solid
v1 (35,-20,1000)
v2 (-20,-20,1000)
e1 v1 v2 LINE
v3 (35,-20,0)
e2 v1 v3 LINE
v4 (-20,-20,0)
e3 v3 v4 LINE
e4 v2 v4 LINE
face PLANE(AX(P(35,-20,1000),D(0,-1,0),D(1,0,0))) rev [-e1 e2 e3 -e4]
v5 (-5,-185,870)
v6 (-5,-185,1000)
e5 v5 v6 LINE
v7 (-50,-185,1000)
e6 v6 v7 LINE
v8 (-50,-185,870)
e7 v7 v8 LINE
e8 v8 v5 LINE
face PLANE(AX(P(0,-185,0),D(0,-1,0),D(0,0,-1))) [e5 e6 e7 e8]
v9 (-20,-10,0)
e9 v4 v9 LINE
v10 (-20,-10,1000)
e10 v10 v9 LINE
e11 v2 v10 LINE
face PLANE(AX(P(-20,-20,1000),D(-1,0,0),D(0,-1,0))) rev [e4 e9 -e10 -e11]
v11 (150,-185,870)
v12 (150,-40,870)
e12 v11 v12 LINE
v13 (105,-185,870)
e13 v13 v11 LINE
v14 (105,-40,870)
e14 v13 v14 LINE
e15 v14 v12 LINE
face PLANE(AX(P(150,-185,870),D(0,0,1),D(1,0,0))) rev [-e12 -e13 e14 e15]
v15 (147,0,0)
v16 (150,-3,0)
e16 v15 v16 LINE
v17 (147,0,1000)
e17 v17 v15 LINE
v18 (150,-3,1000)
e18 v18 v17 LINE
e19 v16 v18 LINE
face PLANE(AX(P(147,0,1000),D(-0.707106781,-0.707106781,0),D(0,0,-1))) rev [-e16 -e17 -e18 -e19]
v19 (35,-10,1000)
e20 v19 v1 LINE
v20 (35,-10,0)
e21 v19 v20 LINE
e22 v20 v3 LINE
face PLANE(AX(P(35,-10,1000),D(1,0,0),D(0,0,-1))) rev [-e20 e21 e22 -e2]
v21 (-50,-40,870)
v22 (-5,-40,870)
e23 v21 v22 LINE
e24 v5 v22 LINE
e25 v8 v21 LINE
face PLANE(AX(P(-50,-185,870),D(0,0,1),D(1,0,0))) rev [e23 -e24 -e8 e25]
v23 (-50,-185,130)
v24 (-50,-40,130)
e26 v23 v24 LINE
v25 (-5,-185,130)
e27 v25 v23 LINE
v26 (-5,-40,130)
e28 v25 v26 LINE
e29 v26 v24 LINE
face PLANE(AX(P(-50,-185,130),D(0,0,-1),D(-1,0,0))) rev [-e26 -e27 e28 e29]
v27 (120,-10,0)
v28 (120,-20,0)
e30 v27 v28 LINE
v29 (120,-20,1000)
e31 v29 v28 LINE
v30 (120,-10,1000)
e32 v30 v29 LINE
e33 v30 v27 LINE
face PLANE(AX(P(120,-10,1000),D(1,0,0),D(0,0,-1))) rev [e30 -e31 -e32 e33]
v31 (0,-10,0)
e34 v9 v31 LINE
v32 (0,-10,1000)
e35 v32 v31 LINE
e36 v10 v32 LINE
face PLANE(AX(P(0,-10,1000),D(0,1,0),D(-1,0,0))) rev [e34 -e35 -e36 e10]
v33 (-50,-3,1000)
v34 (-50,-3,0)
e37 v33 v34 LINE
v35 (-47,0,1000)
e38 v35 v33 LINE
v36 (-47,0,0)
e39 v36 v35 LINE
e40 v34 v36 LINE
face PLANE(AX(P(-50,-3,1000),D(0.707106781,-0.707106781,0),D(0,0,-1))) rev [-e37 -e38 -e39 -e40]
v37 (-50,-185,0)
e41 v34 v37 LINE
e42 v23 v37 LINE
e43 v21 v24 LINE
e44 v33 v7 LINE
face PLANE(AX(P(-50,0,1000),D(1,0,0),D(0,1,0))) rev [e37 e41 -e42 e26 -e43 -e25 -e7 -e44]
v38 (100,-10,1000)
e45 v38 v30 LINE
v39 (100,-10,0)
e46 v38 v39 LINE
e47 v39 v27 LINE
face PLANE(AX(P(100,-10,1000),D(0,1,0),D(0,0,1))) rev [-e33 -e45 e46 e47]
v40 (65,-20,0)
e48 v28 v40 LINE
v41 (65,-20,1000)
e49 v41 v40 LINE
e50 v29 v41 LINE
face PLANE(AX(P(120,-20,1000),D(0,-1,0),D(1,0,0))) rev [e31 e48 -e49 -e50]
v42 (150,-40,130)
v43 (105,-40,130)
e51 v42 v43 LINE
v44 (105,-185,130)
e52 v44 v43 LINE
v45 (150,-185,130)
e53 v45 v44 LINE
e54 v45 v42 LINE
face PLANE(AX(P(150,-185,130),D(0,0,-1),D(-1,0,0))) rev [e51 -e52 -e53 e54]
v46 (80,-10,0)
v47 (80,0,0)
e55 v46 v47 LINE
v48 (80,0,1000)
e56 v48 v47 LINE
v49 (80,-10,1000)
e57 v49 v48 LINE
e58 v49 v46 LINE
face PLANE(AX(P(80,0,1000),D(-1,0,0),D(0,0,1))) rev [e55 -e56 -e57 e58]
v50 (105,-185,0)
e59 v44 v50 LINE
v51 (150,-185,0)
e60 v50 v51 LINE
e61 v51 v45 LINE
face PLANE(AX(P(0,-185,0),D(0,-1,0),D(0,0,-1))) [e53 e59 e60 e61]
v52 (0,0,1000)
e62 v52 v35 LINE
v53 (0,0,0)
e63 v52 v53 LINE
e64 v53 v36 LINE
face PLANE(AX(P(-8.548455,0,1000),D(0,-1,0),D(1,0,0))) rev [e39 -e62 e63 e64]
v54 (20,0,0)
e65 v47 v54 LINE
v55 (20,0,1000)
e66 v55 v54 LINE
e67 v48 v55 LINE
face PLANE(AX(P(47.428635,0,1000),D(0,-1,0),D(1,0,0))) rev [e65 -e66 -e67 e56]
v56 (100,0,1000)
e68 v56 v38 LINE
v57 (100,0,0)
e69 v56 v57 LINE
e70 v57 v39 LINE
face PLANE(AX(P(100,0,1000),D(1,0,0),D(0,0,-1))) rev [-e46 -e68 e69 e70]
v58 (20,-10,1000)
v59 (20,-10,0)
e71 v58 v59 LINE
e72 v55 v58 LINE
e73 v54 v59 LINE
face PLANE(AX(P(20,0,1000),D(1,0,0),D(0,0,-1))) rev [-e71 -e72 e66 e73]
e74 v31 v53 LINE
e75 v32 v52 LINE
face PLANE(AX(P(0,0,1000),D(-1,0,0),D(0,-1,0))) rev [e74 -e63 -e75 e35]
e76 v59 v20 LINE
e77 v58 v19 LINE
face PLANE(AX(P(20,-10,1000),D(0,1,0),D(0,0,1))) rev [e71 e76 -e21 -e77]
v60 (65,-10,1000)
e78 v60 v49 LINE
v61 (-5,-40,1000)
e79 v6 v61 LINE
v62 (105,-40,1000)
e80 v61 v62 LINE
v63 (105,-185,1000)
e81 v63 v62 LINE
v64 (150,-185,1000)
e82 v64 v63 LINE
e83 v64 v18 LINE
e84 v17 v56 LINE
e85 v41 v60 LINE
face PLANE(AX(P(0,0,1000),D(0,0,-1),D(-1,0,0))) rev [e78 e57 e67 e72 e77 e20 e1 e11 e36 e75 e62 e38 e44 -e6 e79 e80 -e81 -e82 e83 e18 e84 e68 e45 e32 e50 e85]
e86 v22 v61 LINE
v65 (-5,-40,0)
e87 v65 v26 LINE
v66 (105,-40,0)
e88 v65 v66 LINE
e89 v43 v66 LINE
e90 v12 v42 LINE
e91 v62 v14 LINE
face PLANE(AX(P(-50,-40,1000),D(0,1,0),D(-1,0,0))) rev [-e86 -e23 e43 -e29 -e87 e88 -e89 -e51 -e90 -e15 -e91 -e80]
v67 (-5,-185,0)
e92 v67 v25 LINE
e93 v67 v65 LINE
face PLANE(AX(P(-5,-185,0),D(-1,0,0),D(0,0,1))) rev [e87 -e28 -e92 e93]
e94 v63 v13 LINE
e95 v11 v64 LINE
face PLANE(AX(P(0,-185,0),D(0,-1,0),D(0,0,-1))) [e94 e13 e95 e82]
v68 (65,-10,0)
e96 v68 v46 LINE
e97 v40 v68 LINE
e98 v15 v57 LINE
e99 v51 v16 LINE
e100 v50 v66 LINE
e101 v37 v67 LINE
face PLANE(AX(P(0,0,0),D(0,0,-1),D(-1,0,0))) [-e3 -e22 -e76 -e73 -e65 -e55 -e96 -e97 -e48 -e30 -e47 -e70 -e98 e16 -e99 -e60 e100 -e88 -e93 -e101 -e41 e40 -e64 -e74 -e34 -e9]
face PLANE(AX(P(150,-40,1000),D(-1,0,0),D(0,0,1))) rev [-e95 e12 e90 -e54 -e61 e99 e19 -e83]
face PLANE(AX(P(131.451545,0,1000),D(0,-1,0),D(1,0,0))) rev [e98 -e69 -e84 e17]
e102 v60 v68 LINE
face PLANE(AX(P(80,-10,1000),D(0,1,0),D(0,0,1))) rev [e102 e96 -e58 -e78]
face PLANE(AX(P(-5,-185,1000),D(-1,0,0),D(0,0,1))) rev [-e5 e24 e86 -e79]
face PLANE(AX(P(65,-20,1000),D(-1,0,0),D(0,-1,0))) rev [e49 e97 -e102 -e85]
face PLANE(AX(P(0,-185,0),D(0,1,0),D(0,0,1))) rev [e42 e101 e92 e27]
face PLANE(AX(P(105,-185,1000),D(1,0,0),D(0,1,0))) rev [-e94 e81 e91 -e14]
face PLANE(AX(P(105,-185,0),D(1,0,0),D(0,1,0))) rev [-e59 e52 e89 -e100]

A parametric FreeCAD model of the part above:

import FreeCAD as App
import Part
import Sketcher

V = App.Vector


def edges_at(feature, points):
    """Names of the edges that pass closest to the given points."""
    edges = feature.Shape.Edges
    near = lambda p: min(range(len(edges)), key=lambda i: edges[i].distToShape(Part.Vertex(*p))[0])
    return sorted({f"Edge{near(p) + 1}" for p in points})

doc = App.newDocument("Part")
body = doc.addObject("PartDesign::Body", "Body")

# Sketch on XY plane
sketch1 = body.newObject("Sketcher::SketchObject", "Sketch")
sketch1.AttachmentSupport = (doc.getObject("XY_Plane"), [""])
sketch1.MapMode = "FlatFace"
sketch1.addGeometry([
    Part.LineSegment(V(-50, 0, 0), V(-50, -40, 0)),  # 0
    Part.LineSegment(V(-50, -40, 0), V(150, -40, 0)),  # 1
    Part.LineSegment(V(150, -40, 0), V(150, 0, 0)),  # 2
    Part.LineSegment(V(150, 0, 0), V(100, 0, 0)),  # 3
    Part.LineSegment(V(100, 0, 0), V(100, -10, 0)),  # 4
    Part.LineSegment(V(100, -10, 0), V(120, -10, 0)),  # 5
    Part.LineSegment(V(120, -10, 0), V(120, -20, 0)),  # 6
    Part.LineSegment(V(120, -20, 0), V(65, -20, 0)),  # 7
    Part.LineSegment(V(65, -20, 0), V(65, -10, 0)),  # 8
    Part.LineSegment(V(65, -10, 0), V(80, -10, 0)),  # 9
    Part.LineSegment(V(80, -10, 0), V(80, 0, 0)),  # 10
    Part.LineSegment(V(80, 0, 0), V(20, 0, 0)),  # 11
    Part.LineSegment(V(20, 0, 0), V(20, -10, 0)),  # 12
    Part.LineSegment(V(20, -10, 0), V(35, -10, 0)),  # 13
    Part.LineSegment(V(35, -10, 0), V(35, -20, 0)),  # 14
    Part.LineSegment(V(35, -20, 0), V(-20, -20, 0)),  # 15
    Part.LineSegment(V(-20, -20, 0), V(-20, -10, 0)),  # 16
    Part.LineSegment(V(-20, -10, 0), V(0, -10, 0)),  # 17
    Part.LineSegment(V(0, -10, 0), V(0, 0, 0)),  # 18
    Part.LineSegment(V(0, 0, 0), V(-50, 0, 0)),  # 19
], False)
sketch1.addConstraint([
    Sketcher.Constraint("Coincident", 0, 2, 1, 1),
    Sketcher.Constraint("Coincident", 1, 2, 2, 1),
    Sketcher.Constraint("Coincident", 2, 2, 3, 1),
    Sketcher.Constraint("Coincident", 3, 2, 4, 1),
    Sketcher.Constraint("Coincident", 4, 2, 5, 1),
    Sketcher.Constraint("Coincident", 5, 2, 6, 1),
    Sketcher.Constraint("Coincident", 6, 2, 7, 1),
    Sketcher.Constraint("Coincident", 7, 2, 8, 1),
    Sketcher.Constraint("Coincident", 8, 2, 9, 1),
    Sketcher.Constraint("Coincident", 9, 2, 10, 1),
    Sketcher.Constraint("Coincident", 10, 2, 11, 1),
    Sketcher.Constraint("Coincident", 11, 2, 12, 1),
    Sketcher.Constraint("Coincident", 12, 2, 13, 1),
    Sketcher.Constraint("Coincident", 13, 2, 14, 1),
    Sketcher.Constraint("Coincident", 14, 2, 15, 1),
    Sketcher.Constraint("Coincident", 15, 2, 16, 1),
    Sketcher.Constraint("Coincident", 16, 2, 17, 1),
    Sketcher.Constraint("Coincident", 17, 2, 18, 1),
    Sketcher.Constraint("Coincident", 18, 2, 19, 1),
    Sketcher.Constraint("Coincident", 19, 2, 0, 1),
    Sketcher.Constraint("Vertical", 0),
    Sketcher.Constraint("Horizontal", 1),
    Sketcher.Constraint("Vertical", 2),
    Sketcher.Constraint("Horizontal", 3),
    Sketcher.Constraint("Vertical", 4),
    Sketcher.Constraint("Horizontal", 5),
    Sketcher.Constraint("Vertical", 6),
    Sketcher.Constraint("Horizontal", 7),
    Sketcher.Constraint("Vertical", 8),
    Sketcher.Constraint("Horizontal", 9),
    Sketcher.Constraint("Vertical", 10),
    Sketcher.Constraint("Horizontal", 11),
    Sketcher.Constraint("Vertical", 12),
    Sketcher.Constraint("Horizontal", 13),
    Sketcher.Constraint("Vertical", 14),
    Sketcher.Constraint("Horizontal", 15),
    Sketcher.Constraint("Vertical", 16),
    Sketcher.Constraint("Horizontal", 17),
    Sketcher.Constraint("Vertical", 18),
    Sketcher.Constraint("Horizontal", 19),
    Sketcher.Constraint("Coincident", 18, 2, -1, 1),
    Sketcher.Constraint("Symmetric", 12, 2, 16, 2, -2),
    Sketcher.Constraint("PointOnObject", 2, 2, -1),
    Sketcher.Constraint("PointOnObject", 10, 2, -1),
    Sketcher.Constraint("Horizontal", 5, 2, 8, 2),
    Sketcher.Constraint("Horizontal", 9, 2, 12, 2),
    Sketcher.Constraint("Horizontal", 7, 2, 14, 2),
    Sketcher.Constraint("Equal", 9, 13),
    Sketcher.Constraint("Equal", 7, 15),
    Sketcher.Constraint("Equal", 5, 17),
    Sketcher.Constraint("Equal", 3, 19),
    Sketcher.Constraint("Equal", 4, 6),
    Sketcher.Constraint("DistanceX", 1, 1, 1, 2, 200.0),
    Sketcher.Constraint("DistanceX", 3, 2, 3, 1, 50.0),
    Sketcher.Constraint("DistanceX", 5, 1, 5, 2, 20.0),
    Sketcher.Constraint("DistanceX", 7, 2, 7, 1, 55.0),
    Sketcher.Constraint("DistanceY", 0, 2, 0, 1, 40.0),
    Sketcher.Constraint("DistanceY", 4, 2, 4, 1, 10.0),
])
pad1 = body.newObject("PartDesign::Pad", "Pad")
pad1.Profile = sketch1
pad1.Length = 1000

# Sketch on XZ plane
sketch2 = body.newObject("Sketcher::SketchObject", "Sketch001")
sketch2.AttachmentSupport = (doc.getObject("XZ_Plane"), [""])
sketch2.MapMode = "FlatFace"
sketch2.AttachmentOffset = App.Placement(V(0, 0, 40), App.Rotation())
sketch2.addGeometry([
    Part.LineSegment(V(105, 1000, 0), V(105, 870, 0)),  # 0
    Part.LineSegment(V(105, 870, 0), V(150, 870, 0)),  # 1
    Part.LineSegment(V(150, 870, 0), V(150, 1000, 0)),  # 2
    Part.LineSegment(V(150, 1000, 0), V(105, 1000, 0)),  # 3
    Part.LineSegment(V(-50, 1000, 0), V(-50, 870, 0)),  # 4
    Part.LineSegment(V(-50, 870, 0), V(-5, 870, 0)),  # 5
    Part.LineSegment(V(-5, 870, 0), V(-5, 1000, 0)),  # 6
    Part.LineSegment(V(-5, 1000, 0), V(-50, 1000, 0)),  # 7
    Part.LineSegment(V(105, 130, 0), V(105, 0, 0)),  # 8
    Part.LineSegment(V(105, 0, 0), V(150, 0, 0)),  # 9
    Part.LineSegment(V(150, 0, 0), V(150, 130, 0)),  # 10
    Part.LineSegment(V(150, 130, 0), V(105, 130, 0)),  # 11
    Part.LineSegment(V(-50, 130, 0), V(-50, 0, 0)),  # 12
    Part.LineSegment(V(-50, 0, 0), V(-5, 0, 0)),  # 13
    Part.LineSegment(V(-5, 0, 0), V(-5, 130, 0)),  # 14
    Part.LineSegment(V(-5, 130, 0), V(-50, 130, 0)),  # 15
], False)
sketch2.addConstraint([
    Sketcher.Constraint("Coincident", 0, 2, 1, 1),
    Sketcher.Constraint("Coincident", 1, 2, 2, 1),
    Sketcher.Constraint("Coincident", 2, 2, 3, 1),
    Sketcher.Constraint("Coincident", 3, 2, 0, 1),
    Sketcher.Constraint("Coincident", 4, 2, 5, 1),
    Sketcher.Constraint("Coincident", 5, 2, 6, 1),
    Sketcher.Constraint("Coincident", 6, 2, 7, 1),
    Sketcher.Constraint("Coincident", 7, 2, 4, 1),
    Sketcher.Constraint("Coincident", 8, 2, 9, 1),
    Sketcher.Constraint("Coincident", 9, 2, 10, 1),
    Sketcher.Constraint("Coincident", 10, 2, 11, 1),
    Sketcher.Constraint("Coincident", 11, 2, 8, 1),
    Sketcher.Constraint("Coincident", 12, 2, 13, 1),
    Sketcher.Constraint("Coincident", 13, 2, 14, 1),
    Sketcher.Constraint("Coincident", 14, 2, 15, 1),
    Sketcher.Constraint("Coincident", 15, 2, 12, 1),
    Sketcher.Constraint("Vertical", 0),
    Sketcher.Constraint("Horizontal", 1),
    Sketcher.Constraint("Vertical", 2),
    Sketcher.Constraint("Horizontal", 3),
    Sketcher.Constraint("Vertical", 4),
    Sketcher.Constraint("Horizontal", 5),
    Sketcher.Constraint("Vertical", 6),
    Sketcher.Constraint("Horizontal", 7),
    Sketcher.Constraint("Vertical", 8),
    Sketcher.Constraint("Horizontal", 9),
    Sketcher.Constraint("Vertical", 10),
    Sketcher.Constraint("Horizontal", 11),
    Sketcher.Constraint("Vertical", 12),
    Sketcher.Constraint("Horizontal", 13),
    Sketcher.Constraint("Vertical", 14),
    Sketcher.Constraint("Horizontal", 15),
    Sketcher.Constraint("PointOnObject", 8, 2, -1),
    Sketcher.Constraint("PointOnObject", 12, 2, -1),
    Sketcher.Constraint("Horizontal", 1, 2, 4, 2),
    Sketcher.Constraint("Horizontal", 3, 2, 6, 2),
    Sketcher.Constraint("Horizontal", 11, 2, 14, 2),
    Sketcher.Constraint("Vertical", 3, 2, 8, 2),
    Sketcher.Constraint("Vertical", 2, 2, 9, 2),
    Sketcher.Constraint("Vertical", 7, 2, 12, 2),
    Sketcher.Constraint("Vertical", 6, 2, 13, 2),
    Sketcher.Constraint("Equal", 3, 5),
    Sketcher.Constraint("Equal", 6, 8),
    Sketcher.Constraint("DistanceX", 1, 1, 1, 2, 45.0),
    Sketcher.Constraint("DistanceY", 0, 2, 0, 1, 130.0),
    Sketcher.Constraint("DistanceX", -1, 1, 0, 2, 105.0),
    Sketcher.Constraint("DistanceY", -1, 1, 0, 2, 870.0),
    Sketcher.Constraint("DistanceX", 4, 2, -1, 1, 50.0),
])
pad2 = body.newObject("PartDesign::Pad", "Pad001")
pad2.Profile = sketch2
pad2.Length = 145
doc.recompute()

chamfer = body.newObject("PartDesign::Chamfer", "Chamfer")
chamfer.Base = (pad2, edges_at(pad2, [(150, 0, 500), (-50, 0, 500)]))
chamfer.Size = 3

doc.recompute()
